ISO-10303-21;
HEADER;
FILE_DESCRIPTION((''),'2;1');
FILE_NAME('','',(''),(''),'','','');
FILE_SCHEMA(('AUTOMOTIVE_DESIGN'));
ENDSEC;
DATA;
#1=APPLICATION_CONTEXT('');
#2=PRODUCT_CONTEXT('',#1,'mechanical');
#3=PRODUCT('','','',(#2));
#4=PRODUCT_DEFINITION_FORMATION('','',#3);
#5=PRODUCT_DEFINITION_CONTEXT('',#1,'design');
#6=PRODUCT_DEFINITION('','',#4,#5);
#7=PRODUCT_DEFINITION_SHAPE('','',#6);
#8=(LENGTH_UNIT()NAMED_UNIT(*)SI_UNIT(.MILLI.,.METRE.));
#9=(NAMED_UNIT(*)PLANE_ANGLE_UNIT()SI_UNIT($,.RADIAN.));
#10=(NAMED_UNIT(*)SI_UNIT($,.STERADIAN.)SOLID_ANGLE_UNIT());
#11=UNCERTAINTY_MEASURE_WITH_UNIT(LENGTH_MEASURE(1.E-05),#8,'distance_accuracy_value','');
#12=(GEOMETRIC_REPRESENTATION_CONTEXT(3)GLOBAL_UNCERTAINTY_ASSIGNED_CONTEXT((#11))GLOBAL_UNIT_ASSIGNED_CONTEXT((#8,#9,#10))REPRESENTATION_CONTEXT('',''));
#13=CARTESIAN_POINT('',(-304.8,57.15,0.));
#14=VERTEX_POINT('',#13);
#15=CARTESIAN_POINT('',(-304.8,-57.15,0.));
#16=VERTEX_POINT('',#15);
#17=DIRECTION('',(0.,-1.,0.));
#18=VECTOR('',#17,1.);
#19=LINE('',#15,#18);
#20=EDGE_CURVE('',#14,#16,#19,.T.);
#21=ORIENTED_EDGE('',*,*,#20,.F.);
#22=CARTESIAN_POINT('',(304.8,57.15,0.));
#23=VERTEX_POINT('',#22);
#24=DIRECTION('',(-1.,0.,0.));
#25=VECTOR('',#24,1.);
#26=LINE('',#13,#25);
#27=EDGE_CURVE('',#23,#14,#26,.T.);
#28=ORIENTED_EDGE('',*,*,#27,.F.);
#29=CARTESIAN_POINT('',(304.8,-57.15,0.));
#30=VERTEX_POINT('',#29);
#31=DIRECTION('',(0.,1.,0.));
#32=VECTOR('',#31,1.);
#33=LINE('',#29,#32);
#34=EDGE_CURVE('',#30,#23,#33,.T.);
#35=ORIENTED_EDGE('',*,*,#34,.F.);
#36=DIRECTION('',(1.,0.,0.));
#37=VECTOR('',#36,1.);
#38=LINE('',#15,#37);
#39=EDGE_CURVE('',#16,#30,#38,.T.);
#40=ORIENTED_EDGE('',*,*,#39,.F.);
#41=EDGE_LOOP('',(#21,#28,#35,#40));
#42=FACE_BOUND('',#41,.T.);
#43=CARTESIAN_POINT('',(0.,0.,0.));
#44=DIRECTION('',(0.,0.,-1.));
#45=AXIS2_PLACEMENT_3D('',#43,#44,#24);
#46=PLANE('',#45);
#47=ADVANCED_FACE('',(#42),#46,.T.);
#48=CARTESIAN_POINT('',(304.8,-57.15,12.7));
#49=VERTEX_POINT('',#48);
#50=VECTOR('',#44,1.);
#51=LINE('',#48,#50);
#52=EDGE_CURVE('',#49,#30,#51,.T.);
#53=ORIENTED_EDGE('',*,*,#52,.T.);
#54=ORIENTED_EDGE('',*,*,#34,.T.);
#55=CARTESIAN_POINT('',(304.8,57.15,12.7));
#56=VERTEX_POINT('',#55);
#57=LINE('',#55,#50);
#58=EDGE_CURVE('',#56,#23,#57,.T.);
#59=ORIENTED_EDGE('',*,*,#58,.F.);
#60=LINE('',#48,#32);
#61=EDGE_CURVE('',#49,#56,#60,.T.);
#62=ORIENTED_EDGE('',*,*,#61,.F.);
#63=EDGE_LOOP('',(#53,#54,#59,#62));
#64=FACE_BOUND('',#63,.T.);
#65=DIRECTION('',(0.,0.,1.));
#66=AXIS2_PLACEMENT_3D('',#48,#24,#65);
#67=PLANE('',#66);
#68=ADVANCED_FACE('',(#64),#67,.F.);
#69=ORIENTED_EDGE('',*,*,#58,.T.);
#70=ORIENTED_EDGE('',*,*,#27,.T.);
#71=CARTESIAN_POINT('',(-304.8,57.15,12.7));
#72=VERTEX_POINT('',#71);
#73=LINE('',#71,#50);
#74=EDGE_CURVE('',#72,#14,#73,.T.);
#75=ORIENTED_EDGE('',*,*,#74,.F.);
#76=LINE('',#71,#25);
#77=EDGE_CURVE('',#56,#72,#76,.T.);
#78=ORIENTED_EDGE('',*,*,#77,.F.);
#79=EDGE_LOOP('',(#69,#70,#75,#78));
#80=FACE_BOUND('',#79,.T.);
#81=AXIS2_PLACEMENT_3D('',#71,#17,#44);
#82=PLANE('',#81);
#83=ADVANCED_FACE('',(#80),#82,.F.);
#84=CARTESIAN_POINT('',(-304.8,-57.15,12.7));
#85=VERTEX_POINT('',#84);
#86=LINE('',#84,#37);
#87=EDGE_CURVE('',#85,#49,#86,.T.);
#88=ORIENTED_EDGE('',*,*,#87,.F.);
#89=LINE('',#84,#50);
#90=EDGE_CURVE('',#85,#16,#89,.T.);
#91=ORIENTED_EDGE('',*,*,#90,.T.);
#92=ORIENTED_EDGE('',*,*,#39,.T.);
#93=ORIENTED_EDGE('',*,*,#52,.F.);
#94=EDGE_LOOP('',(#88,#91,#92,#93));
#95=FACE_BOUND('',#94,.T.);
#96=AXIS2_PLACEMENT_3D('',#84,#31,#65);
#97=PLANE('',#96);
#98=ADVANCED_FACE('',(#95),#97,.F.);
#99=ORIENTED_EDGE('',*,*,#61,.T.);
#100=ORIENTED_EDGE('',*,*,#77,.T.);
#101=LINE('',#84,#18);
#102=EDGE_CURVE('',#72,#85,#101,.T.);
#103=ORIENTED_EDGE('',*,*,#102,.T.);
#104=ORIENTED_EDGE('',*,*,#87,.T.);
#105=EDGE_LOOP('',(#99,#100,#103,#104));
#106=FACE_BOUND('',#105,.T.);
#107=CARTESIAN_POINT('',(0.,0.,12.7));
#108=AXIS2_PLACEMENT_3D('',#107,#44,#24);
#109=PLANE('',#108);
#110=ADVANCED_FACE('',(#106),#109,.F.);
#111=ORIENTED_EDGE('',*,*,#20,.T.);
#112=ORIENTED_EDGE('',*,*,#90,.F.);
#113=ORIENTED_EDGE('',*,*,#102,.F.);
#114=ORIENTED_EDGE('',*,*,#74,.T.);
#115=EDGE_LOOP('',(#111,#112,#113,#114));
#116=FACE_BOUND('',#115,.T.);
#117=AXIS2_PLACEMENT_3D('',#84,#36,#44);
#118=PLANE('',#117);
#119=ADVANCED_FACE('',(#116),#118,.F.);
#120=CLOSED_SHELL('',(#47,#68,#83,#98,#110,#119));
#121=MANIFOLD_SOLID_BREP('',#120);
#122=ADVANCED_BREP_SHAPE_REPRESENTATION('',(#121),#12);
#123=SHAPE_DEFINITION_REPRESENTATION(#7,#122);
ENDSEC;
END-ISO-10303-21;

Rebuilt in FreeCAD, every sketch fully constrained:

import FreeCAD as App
import Part
import Sketcher

V = App.Vector
Q = App.Units.Quantity

doc = App.newDocument("Part")
body = doc.addObject("PartDesign::Body", "Body")

# Sketch on XY plane
sketch1 = doc.addObject("Sketcher::SketchObject", "Sketch")
body.addObject(sketch1)
sketch1.AttachmentSupport = (doc.XY_Plane, [""])
sketch1.MapMode = "FlatFace"
sketch1.addGeometry([
    Part.LineSegment(V(-304.8, 57.15, 0), V(-304.8, -57.15, 0)),
    Part.LineSegment(V(-304.8, -57.15, 0), V(304.8, -57.15, 0)),
    Part.LineSegment(V(304.8, -57.15, 0), V(304.8, 57.15, 0)),
    Part.LineSegment(V(304.8, 57.15, 0), V(-304.8, 57.15, 0)),
], False)
sketch1.addConstraint([
    Sketcher.Constraint("Coincident", 0, 2, 1, 1),
    Sketcher.Constraint("Coincident", 1, 2, 2, 1),
    Sketcher.Constraint("Coincident", 2, 2, 3, 1),
    Sketcher.Constraint("Coincident", 3, 2, 0, 1),
    Sketcher.Constraint("Vertical", 0),
    Sketcher.Constraint("Horizontal", 1),
    Sketcher.Constraint("Vertical", 2),
    Sketcher.Constraint("Horizontal", 3),
    Sketcher.Constraint("Symmetric", 0, 2, 2, 2, -1, 1),
    Sketcher.Constraint("DistanceX", 1, 1, 1, 2, Q("24 in")),
    Sketcher.Constraint("DistanceY", 0, 2, 0, 1, Q("4.5 in")),
])
pad1 = doc.addObject("PartDesign::Pad", "Pad")
body.addObject(pad1)
pad1.Profile = sketch1
pad1.Length = Q("0.5 in")

doc.recompute()
